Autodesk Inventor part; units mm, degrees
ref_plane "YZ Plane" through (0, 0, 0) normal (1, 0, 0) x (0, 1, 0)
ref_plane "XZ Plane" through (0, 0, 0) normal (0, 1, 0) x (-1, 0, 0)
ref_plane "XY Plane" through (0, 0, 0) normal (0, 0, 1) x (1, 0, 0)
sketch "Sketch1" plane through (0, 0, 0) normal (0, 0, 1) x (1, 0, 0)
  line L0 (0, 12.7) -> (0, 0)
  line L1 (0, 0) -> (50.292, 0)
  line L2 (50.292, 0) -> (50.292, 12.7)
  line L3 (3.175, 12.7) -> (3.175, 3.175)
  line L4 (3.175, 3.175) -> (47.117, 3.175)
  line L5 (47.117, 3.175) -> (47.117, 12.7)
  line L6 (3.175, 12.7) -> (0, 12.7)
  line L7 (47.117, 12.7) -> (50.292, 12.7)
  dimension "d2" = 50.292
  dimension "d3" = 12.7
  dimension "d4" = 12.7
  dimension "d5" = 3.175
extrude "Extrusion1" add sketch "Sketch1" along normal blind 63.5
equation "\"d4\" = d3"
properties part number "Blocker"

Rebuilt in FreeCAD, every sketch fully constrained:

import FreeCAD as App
import Part
import Sketcher

V = App.Vector
Q = App.Units.Quantity


def add_polygon(sketch, points):
    """Adds a closed chain of lines whose ends are joined by coincident constraints."""
    first, n = sketch.GeometryCount, len(points)
    for a, b in zip(points, points[1:] + points[:1]):
        sketch.addGeometry(Part.LineSegment(App.Vector(*a, 0), App.Vector(*b, 0)), False)
    for i in range(n):
        sketch.addConstraint(Sketcher.Constraint("Coincident", first + i, 2, first + (i + 1) % n, 1))

doc = App.newDocument("Part")
body = doc.addObject("PartDesign::Body", "Body")

# Sketch on XY plane
sketch1 = body.newObject("Sketcher::SketchObject", "Sketch")
sketch1.AttachmentSupport = (doc.getObject("XY_Plane"), [""])
sketch1.MapMode = "FlatFace"
add_polygon(sketch1, [(3.2, 12.7), (0, 12.7), (0, 0), (50.3, 0), (50.3, 12.7), (47.1, 12.7), (47.1, 3.2), (3.2, 3.2)])  # lines 0-7
sketch1.addConstraint([
    Sketcher.Constraint("Horizontal", 0),
    Sketcher.Constraint("Vertical", 1),
    Sketcher.Constraint("Horizontal", 2),
    Sketcher.Constraint("Vertical", 3),
    Sketcher.Constraint("Horizontal", 4),
    Sketcher.Constraint("Vertical", 5),
    Sketcher.Constraint("Horizontal", 6),
    Sketcher.Constraint("Vertical", 7),
    Sketcher.Constraint("Coincident", 1, 2, -1, 1),
    Sketcher.Constraint("Horizontal", 0, 2, 3, 2),
    Sketcher.Constraint("Equal", 0, 4),
    Sketcher.Constraint("DistanceY", 1, 2, 1, 1, Q("0.5 in")),
    Sketcher.Constraint("DistanceX", 2, 1, 2, 2, Q("1.98 in")),
    Sketcher.Constraint("DistanceX", 0, 2, 0, 1, Q("0.125 in")),
    Sketcher.Constraint("DistanceY", -1, 1, 5, 2, Q("0.125 in")),
])
pad1 = body.newObject("PartDesign::Pad", "Pad")
pad1.Profile = sketch1
pad1.Length = Q("2.5 in")

doc.recompute()
